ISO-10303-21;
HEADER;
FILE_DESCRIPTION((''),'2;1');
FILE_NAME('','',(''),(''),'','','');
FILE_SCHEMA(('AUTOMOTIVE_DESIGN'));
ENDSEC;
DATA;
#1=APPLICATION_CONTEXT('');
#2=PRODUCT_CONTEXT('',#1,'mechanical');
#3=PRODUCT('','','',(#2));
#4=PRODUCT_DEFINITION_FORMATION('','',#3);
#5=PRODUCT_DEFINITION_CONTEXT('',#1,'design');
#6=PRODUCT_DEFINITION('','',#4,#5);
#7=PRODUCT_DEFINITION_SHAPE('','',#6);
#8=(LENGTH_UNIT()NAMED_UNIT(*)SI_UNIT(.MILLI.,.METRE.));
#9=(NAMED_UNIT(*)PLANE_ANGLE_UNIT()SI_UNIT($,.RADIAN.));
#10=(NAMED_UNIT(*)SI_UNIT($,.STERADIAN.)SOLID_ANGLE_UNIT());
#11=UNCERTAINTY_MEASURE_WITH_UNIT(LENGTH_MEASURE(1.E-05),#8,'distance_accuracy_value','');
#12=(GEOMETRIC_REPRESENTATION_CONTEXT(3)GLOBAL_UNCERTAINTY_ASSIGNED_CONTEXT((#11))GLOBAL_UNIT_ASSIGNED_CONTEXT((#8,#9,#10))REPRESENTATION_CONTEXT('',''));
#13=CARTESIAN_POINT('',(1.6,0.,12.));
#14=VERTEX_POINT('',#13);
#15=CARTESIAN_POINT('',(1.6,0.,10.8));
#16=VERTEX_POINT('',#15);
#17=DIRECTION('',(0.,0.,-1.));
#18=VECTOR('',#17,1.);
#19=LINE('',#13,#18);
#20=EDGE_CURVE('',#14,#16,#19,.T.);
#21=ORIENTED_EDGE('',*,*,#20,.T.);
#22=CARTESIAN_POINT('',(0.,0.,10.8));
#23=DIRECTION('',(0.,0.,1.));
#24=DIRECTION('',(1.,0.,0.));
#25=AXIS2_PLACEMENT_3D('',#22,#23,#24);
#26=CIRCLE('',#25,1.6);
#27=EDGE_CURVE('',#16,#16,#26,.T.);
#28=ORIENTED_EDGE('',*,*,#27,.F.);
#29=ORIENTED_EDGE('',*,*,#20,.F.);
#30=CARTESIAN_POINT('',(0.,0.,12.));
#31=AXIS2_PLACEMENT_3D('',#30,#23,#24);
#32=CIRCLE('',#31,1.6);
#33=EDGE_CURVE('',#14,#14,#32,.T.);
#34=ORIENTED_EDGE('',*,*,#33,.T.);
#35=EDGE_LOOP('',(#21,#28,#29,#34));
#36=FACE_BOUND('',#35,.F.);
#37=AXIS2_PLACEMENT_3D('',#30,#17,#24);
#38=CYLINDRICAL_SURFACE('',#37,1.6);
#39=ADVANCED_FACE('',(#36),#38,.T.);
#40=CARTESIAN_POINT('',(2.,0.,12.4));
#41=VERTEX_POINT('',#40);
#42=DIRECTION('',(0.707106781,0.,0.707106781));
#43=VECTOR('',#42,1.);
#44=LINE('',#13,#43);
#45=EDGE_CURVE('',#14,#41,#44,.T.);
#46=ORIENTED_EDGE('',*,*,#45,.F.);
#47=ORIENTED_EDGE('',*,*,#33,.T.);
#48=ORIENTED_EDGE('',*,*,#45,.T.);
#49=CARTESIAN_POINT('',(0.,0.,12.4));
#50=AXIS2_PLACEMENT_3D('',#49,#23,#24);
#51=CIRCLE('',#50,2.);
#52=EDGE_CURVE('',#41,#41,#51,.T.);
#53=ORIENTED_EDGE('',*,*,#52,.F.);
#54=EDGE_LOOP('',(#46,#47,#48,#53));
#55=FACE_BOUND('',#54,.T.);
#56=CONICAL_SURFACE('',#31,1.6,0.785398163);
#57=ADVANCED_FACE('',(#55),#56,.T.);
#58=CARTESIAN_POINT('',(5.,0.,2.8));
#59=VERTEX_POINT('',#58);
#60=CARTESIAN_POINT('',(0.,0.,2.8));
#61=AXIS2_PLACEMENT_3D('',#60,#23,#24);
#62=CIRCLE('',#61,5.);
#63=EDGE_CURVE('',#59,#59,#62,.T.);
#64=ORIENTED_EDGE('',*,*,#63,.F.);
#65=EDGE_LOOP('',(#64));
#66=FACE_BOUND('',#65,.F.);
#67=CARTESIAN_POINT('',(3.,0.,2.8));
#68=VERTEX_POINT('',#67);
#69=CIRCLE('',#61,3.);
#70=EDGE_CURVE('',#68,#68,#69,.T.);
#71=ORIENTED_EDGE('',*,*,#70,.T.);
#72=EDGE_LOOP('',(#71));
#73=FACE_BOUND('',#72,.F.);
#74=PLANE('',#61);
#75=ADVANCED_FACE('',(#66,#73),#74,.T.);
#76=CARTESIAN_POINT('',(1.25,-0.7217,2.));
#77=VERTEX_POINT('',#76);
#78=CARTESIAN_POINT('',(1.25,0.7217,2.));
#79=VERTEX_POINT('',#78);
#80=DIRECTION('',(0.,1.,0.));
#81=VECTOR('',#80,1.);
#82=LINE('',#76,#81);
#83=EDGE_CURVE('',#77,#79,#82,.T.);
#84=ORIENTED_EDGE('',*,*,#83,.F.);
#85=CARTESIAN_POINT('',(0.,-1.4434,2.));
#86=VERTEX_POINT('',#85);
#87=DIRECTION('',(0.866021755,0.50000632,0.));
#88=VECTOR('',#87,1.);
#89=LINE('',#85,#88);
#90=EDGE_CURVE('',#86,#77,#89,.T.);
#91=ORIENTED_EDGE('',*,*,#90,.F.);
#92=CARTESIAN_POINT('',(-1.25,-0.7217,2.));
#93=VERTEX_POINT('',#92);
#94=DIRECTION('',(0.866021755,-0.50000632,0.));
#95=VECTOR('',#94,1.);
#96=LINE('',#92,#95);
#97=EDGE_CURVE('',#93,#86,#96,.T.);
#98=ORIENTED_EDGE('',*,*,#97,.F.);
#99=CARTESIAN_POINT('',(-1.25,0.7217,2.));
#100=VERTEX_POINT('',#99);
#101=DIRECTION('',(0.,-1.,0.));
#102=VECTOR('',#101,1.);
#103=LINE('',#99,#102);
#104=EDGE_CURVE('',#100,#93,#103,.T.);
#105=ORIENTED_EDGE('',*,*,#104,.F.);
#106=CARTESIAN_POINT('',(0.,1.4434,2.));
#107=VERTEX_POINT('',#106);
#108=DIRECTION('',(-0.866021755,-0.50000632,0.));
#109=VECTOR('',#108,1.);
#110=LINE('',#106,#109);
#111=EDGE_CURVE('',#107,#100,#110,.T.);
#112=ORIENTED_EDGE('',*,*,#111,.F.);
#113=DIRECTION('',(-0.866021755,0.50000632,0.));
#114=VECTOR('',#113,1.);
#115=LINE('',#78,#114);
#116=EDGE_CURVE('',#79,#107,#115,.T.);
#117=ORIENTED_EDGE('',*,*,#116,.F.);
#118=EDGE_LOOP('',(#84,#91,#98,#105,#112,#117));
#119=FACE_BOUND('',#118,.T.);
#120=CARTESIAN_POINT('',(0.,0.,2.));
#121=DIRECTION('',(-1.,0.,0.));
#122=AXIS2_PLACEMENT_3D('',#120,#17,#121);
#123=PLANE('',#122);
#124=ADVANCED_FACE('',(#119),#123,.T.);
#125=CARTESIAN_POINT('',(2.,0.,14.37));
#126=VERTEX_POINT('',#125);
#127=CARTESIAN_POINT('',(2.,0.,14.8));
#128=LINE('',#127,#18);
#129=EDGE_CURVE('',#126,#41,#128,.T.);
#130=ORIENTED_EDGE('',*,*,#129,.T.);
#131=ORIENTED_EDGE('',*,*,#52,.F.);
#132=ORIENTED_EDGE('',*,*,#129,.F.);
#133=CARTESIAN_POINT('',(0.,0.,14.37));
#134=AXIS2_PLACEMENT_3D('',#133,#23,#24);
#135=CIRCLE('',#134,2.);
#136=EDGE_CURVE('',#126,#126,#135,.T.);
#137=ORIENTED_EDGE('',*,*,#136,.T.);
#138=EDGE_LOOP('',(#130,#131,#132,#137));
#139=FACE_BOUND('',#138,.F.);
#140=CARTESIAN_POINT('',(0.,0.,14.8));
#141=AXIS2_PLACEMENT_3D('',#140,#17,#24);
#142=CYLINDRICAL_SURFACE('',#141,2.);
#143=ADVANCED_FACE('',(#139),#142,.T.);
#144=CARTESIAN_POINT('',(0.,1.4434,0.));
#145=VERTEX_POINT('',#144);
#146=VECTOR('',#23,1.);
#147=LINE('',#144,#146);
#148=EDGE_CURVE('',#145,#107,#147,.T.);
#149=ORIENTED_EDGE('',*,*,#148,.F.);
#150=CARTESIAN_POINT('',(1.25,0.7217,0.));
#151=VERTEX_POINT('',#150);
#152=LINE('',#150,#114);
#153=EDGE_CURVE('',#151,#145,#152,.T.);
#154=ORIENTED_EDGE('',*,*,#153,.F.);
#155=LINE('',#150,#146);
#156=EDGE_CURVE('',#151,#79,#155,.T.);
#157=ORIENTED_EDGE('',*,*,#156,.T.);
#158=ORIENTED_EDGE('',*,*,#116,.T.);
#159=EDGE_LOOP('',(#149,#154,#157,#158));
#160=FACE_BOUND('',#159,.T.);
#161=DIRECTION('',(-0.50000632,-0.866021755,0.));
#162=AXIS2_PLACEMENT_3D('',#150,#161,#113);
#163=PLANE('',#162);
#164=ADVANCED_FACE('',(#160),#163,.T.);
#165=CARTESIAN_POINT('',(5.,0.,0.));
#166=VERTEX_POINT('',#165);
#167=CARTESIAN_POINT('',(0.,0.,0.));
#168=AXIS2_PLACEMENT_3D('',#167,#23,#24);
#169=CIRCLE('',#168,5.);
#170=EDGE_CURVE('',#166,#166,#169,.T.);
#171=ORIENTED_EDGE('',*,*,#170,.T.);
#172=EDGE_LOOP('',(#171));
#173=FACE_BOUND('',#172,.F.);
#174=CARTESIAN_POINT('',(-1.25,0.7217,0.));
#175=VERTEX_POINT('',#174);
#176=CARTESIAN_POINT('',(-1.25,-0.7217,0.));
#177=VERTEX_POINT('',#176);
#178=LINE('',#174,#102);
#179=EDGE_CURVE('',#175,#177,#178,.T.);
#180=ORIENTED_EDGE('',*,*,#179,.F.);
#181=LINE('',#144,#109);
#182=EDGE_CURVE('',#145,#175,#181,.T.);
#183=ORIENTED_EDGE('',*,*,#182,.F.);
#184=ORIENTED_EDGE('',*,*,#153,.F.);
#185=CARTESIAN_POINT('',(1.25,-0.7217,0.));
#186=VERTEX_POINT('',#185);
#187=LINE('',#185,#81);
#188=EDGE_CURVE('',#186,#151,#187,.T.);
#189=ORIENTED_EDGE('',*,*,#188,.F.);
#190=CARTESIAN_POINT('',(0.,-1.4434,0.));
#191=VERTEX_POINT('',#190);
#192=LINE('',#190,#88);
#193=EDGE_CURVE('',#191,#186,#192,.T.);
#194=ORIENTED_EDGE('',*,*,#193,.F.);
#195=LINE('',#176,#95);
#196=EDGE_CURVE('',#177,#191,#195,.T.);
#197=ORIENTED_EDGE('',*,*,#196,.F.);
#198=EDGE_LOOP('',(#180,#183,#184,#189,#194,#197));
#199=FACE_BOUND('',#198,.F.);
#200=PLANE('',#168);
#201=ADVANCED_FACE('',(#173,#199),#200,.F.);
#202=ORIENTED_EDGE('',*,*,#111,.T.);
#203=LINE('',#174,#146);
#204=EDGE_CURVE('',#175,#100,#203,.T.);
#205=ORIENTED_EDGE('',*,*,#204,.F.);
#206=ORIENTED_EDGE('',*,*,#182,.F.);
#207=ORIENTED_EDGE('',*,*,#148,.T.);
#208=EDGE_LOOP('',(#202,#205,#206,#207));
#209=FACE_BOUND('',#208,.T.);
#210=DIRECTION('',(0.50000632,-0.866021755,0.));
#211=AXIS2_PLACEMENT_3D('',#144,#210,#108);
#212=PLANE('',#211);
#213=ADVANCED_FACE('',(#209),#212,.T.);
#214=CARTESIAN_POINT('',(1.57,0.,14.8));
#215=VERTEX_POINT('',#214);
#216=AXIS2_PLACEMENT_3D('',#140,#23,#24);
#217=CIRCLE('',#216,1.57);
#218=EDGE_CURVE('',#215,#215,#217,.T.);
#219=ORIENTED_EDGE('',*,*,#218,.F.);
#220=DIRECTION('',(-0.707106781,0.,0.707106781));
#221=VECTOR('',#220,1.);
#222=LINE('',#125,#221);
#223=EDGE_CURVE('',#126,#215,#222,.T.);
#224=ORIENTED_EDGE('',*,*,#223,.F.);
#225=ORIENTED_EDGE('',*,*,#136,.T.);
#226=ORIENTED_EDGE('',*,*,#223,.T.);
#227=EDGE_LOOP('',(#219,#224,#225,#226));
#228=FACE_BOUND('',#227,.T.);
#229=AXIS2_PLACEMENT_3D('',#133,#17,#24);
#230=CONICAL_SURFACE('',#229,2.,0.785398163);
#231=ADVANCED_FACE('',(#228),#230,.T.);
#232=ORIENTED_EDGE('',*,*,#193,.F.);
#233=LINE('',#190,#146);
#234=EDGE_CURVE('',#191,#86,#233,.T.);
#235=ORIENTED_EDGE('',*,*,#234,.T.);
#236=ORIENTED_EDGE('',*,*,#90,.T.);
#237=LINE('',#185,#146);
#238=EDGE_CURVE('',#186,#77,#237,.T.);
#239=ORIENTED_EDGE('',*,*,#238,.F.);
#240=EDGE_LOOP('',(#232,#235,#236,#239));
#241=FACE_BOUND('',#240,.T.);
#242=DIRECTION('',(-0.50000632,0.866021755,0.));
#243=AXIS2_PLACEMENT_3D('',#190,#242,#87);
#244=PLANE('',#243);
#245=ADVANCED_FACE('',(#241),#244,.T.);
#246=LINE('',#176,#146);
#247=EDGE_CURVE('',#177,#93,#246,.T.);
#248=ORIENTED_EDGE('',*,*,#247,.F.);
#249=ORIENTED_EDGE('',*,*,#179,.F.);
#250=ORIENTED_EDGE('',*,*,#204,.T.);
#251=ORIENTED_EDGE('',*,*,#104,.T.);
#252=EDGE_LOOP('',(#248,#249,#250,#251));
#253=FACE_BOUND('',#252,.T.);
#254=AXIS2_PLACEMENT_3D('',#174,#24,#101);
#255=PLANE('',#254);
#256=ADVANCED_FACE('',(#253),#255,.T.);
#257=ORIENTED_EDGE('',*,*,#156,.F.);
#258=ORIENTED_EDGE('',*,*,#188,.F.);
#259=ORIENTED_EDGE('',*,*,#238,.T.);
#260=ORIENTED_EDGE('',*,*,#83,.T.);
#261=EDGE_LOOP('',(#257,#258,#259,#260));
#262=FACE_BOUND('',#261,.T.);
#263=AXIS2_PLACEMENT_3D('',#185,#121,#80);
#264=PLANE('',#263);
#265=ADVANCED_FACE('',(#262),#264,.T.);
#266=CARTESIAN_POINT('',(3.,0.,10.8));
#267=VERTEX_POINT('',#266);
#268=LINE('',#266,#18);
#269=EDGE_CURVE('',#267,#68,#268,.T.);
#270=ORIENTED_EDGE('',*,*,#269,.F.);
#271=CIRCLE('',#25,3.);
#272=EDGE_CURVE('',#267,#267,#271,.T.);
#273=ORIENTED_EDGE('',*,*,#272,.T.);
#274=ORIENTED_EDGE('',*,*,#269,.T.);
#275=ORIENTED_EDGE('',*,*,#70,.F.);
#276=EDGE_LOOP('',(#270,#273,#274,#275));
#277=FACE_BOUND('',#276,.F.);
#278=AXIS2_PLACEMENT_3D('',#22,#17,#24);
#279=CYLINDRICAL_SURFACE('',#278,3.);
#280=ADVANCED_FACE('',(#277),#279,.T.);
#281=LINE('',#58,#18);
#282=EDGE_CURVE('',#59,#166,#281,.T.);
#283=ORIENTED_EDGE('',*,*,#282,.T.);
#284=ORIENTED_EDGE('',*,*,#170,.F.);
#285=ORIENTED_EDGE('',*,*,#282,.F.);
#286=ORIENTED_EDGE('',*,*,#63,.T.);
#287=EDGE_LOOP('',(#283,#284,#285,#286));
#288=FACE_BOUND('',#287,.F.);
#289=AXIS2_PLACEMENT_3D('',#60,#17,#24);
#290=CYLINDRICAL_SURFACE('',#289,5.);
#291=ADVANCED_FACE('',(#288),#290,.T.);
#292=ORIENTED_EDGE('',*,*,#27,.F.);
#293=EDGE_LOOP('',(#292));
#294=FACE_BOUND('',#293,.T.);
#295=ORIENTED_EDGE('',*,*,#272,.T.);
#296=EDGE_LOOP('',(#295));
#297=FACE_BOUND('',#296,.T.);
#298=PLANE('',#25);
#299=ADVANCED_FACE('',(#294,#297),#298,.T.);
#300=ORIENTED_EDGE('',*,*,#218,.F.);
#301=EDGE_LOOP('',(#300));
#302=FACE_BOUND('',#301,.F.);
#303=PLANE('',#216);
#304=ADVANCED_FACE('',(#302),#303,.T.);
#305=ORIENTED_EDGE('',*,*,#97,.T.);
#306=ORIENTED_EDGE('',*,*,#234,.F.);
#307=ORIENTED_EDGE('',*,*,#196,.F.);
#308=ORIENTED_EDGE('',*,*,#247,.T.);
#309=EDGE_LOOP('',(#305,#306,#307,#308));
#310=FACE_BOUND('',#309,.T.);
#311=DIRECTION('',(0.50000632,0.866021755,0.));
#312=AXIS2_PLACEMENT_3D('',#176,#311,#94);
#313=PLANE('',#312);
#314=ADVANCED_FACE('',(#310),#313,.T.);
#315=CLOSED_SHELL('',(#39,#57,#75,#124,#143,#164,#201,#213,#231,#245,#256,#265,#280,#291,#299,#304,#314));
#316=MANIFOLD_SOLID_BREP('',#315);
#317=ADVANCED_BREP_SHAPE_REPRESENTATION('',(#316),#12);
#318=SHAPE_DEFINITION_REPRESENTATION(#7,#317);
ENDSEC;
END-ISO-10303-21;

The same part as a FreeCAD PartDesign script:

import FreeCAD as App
import Part
import Sketcher
from FreeCAD import Vector
Q = App.Units.Quantity


def edges_at(feature, points):
    """Names of the edges that pass closest to the given points."""
    edges = feature.Shape.Edges
    near = lambda p: min(range(len(edges)), key=lambda i: edges[i].distToShape(Part.Vertex(*p))[0])
    return sorted({f"Edge{near(p) + 1}" for p in points})


def add_polygon(sketch, points):
    """Adds a closed chain of lines whose ends are joined by coincident constraints."""
    first, n = sketch.GeometryCount, len(points)
    for a, b in zip(points, points[1:] + points[:1]):
        sketch.addGeometry(Part.LineSegment(App.Vector(*a, 0), App.Vector(*b, 0)), False)
    for i in range(n):
        sketch.addConstraint(Sketcher.Constraint("Coincident", first + i, 2, first + (i + 1) % n, 1))

doc = App.newDocument("Part")
body = doc.addObject("PartDesign::Body", "Body")

# Sketch on XZ plane
sketch1 = body.newObject("Sketcher::SketchObject", "Sketch")
sketch1.AttachmentSupport = (doc.getObject("XZ_Plane"), [""])
sketch1.MapMode = "FlatFace"
add_polygon(sketch1, [(5, 0), (0, 0), (0, 14.8), (2, 14.8), (2, 12.4), (1.6, 12), (1.6, 10.8), (3, 10.8), (3, 2.8), (5, 2.8)])  # lines 0-9
sketch1.addConstraint([
    Sketcher.Constraint("Horizontal", 0),
    Sketcher.Constraint("Vertical", 1),
    Sketcher.Constraint("Horizontal", 2),
    Sketcher.Constraint("Vertical", 3),
    Sketcher.Constraint("Vertical", 5),
    Sketcher.Constraint("Horizontal", 6),
    Sketcher.Constraint("Vertical", 7),
    Sketcher.Constraint("Horizontal", 8),
    Sketcher.Constraint("Vertical", 9),
    Sketcher.Constraint("Coincident", 0, 2, -1, 1),
    Sketcher.Constraint("Equal", 2, 8),
    Sketcher.Constraint("DistanceY", 7, 2, 7, 1, Q("8 mm")),
    Sketcher.Constraint("DistanceY", 5, 2, 5, 1, Q("1.2 mm")),
    Sketcher.Constraint("DistanceY", 9, 2, 9, 1, Q("2.8 mm")),
    Sketcher.Constraint("DistanceY", 5, 2, 2, 2, Q("4 mm")),
    Sketcher.Constraint("DistanceX", 0, 2, 0, 1, Q("5 mm")),
    Sketcher.Constraint("DistanceX", 2, 1, 2, 2, Q("2 mm")),
    Sketcher.Constraint("Angle", 4, Q("-135 deg")),
    Sketcher.Constraint("DistanceX", 6, 1, 6, 2, Q("1.4 mm")),
])
revolution = body.newObject("PartDesign::Revolution", "Revolution")
revolution.Profile = sketch1
revolution.ReferenceAxis = (sketch1, ["V_Axis"])
revolution.Angle = 360

# Sketch on XY plane
sketch2 = body.newObject("Sketcher::SketchObject", "Sketch001")
sketch2.AttachmentSupport = (doc.getObject("XY_Plane"), [""])
sketch2.MapMode = "FlatFace"
add_polygon(sketch2, [(-1.25, 0.7217), (0, 1.4434), (1.25, 0.7217), (1.25, -0.7217), (0, -1.4434), (-1.25, -0.7217)])  # lines 0-5
sketch2.addConstraint([
    Sketcher.Constraint("Vertical", 2),
    Sketcher.Constraint("Vertical", 5),
    Sketcher.Constraint("Symmetric", 0, 2, 3, 2, -1, 1),
    Sketcher.Constraint("Symmetric", 1, 2, 4, 2, -1, 1),
    Sketcher.Constraint("PointOnObject", 0, 2, -2),
    Sketcher.Constraint("Parallel", 0, 3),
    Sketcher.Constraint("Horizontal", 2, 2, 4, 2),
    Sketcher.Constraint("DistanceX", 4, 2, 2, 2, Q("2.5 mm")),
    Sketcher.Constraint("Angle", 0, Q("30.0004 deg")),
    Sketcher.Constraint("DistanceY", 2, 2, 2, 1, Q("1.4434 mm")),
])
pocket1 = body.newObject("PartDesign::Pocket", "Pocket")
pocket1.Profile = sketch2
pocket1.Length = 2
pocket1.Reversed = True
doc.recompute()

chamfer = body.newObject("PartDesign::Chamfer", "Chamfer")
chamfer.Base = (pocket1, edges_at(pocket1, [(-2, 0, 14.8)]))
chamfer.Size = 0.43

doc.recompute()
